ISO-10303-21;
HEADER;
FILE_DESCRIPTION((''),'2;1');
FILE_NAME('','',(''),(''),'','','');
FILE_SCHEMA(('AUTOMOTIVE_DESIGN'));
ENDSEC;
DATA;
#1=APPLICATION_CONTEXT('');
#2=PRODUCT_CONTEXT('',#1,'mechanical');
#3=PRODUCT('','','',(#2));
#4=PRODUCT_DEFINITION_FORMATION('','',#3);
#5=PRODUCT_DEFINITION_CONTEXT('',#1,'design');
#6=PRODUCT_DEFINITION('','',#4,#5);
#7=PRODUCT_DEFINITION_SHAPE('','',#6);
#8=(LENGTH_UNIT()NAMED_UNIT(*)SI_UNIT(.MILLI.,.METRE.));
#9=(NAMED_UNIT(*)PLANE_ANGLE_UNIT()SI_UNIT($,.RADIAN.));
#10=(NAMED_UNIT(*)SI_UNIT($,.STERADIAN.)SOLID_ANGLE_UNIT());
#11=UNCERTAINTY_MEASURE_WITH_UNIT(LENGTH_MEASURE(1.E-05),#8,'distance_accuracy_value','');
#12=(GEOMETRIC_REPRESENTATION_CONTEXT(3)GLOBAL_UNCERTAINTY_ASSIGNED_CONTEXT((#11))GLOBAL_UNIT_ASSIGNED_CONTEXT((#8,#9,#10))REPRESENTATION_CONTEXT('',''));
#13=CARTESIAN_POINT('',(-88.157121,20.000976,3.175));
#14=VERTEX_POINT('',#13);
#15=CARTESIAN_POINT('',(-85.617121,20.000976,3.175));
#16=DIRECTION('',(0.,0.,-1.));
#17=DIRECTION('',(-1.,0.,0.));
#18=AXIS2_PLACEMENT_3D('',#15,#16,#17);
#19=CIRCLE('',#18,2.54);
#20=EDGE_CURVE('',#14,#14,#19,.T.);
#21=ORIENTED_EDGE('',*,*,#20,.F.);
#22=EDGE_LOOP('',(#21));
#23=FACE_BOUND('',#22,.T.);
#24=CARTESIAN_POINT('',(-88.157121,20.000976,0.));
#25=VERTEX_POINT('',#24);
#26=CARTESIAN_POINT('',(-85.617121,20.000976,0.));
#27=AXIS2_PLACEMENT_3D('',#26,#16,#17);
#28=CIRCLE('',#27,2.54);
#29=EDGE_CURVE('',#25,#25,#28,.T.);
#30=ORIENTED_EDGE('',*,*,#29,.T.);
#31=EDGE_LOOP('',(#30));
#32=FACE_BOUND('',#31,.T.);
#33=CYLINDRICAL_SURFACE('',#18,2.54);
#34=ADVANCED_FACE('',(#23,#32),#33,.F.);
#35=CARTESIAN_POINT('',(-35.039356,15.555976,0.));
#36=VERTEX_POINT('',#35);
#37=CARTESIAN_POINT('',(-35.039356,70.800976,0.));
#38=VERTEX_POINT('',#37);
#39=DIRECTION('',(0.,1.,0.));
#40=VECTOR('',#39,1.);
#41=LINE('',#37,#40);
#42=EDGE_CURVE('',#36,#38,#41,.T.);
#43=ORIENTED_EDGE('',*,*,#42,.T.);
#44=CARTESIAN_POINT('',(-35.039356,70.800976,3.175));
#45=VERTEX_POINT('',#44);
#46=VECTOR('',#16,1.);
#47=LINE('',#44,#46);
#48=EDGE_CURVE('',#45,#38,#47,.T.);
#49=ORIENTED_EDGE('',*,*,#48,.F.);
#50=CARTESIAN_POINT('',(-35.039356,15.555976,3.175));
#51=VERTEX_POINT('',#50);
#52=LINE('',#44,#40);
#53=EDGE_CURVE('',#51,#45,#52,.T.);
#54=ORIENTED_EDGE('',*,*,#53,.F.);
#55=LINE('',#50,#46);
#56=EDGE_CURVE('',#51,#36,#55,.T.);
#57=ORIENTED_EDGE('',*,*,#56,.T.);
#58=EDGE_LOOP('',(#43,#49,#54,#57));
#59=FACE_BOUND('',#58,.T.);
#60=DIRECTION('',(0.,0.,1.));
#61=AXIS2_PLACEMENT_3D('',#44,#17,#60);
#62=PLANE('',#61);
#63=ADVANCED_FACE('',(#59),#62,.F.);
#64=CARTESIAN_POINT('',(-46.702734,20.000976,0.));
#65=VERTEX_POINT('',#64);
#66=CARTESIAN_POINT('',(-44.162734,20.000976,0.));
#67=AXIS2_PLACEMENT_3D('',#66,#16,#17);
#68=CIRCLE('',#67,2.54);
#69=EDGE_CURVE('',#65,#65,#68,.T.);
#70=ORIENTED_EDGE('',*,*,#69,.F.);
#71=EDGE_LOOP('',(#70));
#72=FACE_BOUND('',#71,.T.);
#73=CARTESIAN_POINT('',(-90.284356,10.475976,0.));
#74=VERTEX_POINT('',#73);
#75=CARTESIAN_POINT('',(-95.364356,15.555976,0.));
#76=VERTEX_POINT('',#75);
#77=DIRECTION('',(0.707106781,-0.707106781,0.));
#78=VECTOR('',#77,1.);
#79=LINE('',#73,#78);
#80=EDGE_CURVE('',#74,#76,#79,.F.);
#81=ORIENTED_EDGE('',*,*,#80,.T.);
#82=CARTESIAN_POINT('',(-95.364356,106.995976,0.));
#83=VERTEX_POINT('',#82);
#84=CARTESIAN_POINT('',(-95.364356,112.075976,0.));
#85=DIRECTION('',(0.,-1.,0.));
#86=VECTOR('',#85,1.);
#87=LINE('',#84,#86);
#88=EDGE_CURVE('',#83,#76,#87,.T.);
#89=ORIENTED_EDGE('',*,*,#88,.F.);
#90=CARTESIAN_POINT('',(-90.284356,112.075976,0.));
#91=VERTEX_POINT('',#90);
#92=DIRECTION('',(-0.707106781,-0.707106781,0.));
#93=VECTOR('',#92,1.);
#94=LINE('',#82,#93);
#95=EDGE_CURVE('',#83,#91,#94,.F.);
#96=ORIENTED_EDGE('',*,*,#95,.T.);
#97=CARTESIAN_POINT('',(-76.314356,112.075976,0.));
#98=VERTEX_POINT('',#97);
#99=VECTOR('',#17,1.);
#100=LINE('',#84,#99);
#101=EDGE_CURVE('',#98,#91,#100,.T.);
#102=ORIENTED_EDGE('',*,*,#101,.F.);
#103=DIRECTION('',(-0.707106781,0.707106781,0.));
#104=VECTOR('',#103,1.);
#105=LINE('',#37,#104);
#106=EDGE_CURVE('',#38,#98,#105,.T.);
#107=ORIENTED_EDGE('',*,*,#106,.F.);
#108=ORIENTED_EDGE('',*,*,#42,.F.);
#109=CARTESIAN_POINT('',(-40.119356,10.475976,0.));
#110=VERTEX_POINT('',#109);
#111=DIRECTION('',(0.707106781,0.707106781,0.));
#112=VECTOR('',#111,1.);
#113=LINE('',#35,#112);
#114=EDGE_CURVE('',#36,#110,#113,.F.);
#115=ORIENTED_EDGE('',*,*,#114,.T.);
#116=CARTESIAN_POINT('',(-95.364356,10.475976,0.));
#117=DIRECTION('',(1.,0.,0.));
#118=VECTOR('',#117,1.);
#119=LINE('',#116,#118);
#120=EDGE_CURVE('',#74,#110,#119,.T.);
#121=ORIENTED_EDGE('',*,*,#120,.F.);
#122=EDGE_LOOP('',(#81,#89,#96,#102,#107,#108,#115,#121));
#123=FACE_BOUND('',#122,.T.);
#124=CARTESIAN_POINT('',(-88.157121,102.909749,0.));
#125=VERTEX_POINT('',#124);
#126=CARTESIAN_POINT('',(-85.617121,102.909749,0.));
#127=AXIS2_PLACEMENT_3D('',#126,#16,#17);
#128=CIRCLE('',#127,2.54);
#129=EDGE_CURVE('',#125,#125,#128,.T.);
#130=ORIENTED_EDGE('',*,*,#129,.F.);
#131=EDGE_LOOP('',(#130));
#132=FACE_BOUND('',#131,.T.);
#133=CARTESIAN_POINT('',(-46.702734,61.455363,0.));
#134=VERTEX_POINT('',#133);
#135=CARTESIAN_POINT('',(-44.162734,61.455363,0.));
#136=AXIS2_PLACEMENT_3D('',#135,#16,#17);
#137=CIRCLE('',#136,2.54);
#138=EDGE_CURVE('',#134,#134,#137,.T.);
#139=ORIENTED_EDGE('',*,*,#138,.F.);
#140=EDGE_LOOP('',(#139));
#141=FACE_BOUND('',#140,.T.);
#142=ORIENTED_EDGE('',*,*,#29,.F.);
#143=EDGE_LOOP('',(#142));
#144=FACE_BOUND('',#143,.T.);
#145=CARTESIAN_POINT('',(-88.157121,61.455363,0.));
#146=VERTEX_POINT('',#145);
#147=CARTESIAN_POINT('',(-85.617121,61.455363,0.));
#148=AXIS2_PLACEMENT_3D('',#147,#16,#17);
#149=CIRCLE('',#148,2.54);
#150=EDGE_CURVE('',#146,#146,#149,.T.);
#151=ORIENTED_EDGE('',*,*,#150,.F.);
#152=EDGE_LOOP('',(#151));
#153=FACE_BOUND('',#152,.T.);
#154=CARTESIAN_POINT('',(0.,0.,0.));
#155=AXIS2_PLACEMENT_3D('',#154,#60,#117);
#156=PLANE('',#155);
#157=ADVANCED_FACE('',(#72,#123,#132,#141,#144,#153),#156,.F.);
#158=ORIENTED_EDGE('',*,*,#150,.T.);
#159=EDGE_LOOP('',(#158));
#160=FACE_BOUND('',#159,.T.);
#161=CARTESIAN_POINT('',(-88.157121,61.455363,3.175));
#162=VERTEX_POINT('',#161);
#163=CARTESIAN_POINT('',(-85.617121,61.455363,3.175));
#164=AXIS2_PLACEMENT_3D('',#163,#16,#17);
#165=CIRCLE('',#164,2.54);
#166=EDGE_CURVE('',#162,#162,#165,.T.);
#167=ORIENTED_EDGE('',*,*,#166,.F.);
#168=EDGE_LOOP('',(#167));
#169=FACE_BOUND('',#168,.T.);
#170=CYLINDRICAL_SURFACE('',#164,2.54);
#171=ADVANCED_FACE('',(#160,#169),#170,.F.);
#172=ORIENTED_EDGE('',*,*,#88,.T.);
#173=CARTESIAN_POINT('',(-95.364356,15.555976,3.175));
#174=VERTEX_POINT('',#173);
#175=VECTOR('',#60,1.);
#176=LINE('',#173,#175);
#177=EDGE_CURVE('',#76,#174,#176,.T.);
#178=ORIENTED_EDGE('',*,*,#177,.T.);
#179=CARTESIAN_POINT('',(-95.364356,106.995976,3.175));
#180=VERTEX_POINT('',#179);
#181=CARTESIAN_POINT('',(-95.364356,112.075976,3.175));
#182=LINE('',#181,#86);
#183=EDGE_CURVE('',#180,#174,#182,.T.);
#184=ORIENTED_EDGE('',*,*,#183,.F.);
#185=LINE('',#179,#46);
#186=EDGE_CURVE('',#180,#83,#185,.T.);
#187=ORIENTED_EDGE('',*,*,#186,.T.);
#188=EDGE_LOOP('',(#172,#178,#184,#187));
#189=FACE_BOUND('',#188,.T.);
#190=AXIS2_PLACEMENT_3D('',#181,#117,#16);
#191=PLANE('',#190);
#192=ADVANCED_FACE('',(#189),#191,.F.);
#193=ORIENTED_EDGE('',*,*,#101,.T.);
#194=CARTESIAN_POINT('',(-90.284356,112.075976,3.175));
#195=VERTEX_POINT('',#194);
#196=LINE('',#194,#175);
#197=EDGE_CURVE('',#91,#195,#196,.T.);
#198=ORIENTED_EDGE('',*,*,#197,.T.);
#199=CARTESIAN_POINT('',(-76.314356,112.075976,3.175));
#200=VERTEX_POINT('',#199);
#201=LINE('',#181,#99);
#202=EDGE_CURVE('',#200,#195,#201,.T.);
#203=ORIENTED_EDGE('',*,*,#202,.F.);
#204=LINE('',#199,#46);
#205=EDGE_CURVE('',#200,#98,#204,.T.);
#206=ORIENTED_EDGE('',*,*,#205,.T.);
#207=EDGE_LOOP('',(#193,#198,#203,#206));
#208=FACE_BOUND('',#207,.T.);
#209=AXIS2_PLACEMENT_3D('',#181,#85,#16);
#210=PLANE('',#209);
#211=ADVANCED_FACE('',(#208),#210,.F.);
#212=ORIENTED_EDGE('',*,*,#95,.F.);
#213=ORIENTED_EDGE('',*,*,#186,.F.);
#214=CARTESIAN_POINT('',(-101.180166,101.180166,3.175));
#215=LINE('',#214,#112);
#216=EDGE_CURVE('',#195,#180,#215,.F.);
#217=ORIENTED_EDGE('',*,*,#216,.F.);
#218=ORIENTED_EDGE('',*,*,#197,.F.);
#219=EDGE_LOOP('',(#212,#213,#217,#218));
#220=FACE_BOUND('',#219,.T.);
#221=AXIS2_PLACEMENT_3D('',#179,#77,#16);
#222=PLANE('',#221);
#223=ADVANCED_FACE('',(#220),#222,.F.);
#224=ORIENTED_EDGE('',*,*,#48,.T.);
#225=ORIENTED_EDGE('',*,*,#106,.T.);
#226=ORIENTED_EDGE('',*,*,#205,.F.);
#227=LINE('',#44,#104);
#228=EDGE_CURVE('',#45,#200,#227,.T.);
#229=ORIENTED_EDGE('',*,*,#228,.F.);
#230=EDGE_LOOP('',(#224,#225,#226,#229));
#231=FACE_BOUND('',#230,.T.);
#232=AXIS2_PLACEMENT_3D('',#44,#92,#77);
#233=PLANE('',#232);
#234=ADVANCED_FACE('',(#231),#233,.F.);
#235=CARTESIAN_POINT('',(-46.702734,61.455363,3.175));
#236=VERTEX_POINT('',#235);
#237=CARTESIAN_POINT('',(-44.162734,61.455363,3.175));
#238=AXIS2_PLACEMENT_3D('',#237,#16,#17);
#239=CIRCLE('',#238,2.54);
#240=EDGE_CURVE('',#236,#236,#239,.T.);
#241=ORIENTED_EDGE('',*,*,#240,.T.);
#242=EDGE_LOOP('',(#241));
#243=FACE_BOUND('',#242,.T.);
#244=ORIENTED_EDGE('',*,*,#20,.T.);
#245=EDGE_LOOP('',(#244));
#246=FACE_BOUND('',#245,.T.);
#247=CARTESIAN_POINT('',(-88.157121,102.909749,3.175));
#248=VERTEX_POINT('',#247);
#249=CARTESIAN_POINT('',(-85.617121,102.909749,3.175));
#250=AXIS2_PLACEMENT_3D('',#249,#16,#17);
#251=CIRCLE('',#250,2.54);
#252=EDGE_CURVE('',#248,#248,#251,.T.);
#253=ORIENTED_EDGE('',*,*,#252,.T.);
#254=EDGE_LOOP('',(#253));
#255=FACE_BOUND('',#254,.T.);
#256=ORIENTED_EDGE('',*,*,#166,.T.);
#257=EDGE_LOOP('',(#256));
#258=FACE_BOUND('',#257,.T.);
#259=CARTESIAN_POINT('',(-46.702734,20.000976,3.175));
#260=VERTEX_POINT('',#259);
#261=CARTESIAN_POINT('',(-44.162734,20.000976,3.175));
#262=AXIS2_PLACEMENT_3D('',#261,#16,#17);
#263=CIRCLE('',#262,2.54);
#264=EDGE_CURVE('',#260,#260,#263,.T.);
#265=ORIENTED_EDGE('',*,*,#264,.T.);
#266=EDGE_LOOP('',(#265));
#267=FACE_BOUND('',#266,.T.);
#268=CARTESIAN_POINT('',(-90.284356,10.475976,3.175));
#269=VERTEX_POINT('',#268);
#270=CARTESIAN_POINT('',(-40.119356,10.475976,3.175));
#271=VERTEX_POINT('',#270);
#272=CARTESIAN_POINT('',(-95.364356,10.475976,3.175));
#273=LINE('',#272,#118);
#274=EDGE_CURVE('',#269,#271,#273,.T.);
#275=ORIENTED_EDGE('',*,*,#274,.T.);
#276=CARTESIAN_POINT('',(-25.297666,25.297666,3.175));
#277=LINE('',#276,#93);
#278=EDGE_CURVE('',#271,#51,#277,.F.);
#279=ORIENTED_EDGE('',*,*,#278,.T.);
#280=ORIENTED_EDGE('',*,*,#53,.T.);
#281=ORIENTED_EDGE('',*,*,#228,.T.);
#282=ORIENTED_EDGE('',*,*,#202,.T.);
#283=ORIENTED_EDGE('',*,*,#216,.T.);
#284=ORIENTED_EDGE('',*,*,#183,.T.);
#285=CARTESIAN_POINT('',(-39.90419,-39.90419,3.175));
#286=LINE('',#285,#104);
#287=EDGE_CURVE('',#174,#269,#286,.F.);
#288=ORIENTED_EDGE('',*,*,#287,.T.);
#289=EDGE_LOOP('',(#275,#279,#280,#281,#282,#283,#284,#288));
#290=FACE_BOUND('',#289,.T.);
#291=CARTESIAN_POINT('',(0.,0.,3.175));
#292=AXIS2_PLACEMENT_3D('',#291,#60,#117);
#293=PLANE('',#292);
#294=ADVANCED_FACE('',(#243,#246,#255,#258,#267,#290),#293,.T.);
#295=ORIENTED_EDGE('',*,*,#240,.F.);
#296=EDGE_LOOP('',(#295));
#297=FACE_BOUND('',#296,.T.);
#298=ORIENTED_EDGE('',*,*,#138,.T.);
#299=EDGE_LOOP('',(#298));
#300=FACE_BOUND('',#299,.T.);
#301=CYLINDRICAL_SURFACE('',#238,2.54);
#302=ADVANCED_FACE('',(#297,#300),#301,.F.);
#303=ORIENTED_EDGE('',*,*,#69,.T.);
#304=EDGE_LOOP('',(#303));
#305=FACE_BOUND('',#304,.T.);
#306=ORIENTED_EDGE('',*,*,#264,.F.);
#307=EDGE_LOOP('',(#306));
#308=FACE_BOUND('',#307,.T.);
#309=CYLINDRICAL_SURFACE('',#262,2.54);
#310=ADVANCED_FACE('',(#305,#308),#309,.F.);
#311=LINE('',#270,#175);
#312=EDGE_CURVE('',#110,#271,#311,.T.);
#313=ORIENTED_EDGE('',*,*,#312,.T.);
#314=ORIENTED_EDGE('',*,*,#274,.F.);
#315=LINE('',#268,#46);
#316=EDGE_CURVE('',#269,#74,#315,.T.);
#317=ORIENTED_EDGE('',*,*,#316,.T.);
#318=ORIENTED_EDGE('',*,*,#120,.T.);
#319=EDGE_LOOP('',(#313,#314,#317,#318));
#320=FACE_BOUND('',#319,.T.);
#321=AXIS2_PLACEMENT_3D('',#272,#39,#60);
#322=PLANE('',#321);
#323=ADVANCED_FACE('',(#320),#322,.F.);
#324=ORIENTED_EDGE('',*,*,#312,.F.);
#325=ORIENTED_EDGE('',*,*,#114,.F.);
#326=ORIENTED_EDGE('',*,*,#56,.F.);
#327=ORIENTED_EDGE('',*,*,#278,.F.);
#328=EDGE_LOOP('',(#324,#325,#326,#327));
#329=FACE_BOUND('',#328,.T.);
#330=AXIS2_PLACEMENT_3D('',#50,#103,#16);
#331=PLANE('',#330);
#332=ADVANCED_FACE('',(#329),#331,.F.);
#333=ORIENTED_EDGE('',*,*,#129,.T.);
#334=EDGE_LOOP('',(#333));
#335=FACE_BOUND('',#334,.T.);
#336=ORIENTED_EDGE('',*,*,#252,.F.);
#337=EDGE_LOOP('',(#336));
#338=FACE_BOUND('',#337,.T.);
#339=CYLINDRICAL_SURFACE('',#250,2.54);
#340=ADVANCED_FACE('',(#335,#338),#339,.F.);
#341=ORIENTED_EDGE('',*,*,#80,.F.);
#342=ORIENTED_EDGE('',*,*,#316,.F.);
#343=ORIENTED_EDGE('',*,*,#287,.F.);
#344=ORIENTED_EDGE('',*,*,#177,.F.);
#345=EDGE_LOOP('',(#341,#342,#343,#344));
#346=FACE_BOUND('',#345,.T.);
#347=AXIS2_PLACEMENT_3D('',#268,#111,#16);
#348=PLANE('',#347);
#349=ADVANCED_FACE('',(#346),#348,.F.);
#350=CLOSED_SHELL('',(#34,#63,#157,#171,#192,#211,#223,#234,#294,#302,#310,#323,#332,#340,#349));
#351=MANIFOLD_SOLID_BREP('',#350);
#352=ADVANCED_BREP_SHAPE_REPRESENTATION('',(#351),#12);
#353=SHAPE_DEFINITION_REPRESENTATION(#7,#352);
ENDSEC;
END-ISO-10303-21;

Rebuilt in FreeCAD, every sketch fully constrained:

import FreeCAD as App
import Part
import Sketcher

V = App.Vector
Q = App.Units.Quantity


def edges_at(feature, points):
    """Names of the edges that pass closest to the given points."""
    edges = feature.Shape.Edges
    near = lambda p: min(range(len(edges)), key=lambda i: edges[i].distToShape(Part.Vertex(*p))[0])
    return sorted({f"Edge{near(p) + 1}" for p in points})


def add_polygon(sketch, points):
    """Adds a closed chain of lines whose ends are joined by coincident constraints."""
    first, n = sketch.GeometryCount, len(points)
    for a, b in zip(points, points[1:] + points[:1]):
        sketch.addGeometry(Part.LineSegment(App.Vector(*a, 0), App.Vector(*b, 0)), False)
    for i in range(n):
        sketch.addConstraint(Sketcher.Constraint("Coincident", first + i, 2, first + (i + 1) % n, 1))

doc = App.newDocument("Part")
body = doc.addObject("PartDesign::Body", "Body")

# Sketch on XY plane
sketch1 = body.newObject("Sketcher::SketchObject", "Sketch")
sketch1.AttachmentSupport = (doc.getObject("XY_Plane"), [""])
sketch1.MapMode = "FlatFace"
add_polygon(sketch1, [(-95, 10), (-35, 10), (-35, 71), (-76, 112), (-95, 112)])  # lines 0-4
sketch1.addConstraint([
    Sketcher.Constraint("Horizontal", 0),
    Sketcher.Constraint("Vertical", 1),
    Sketcher.Constraint("Horizontal", 3),
    Sketcher.Constraint("Vertical", 4),
    Sketcher.Constraint("Equal", 0, 1),
    Sketcher.Constraint("DistanceY", 4, 2, 4, 1, Q("4 in")),
    Sketcher.Constraint("Angle", 2, Q("135 deg")),
    Sketcher.Constraint("DistanceX", 3, 2, 3, 1, Q("0.75 in")),
    Sketcher.Constraint("DistanceX", 0, 2, -1, 1, 35.039356),
    Sketcher.Constraint("DistanceY", -1, 1, 0, 2, 10.475976),
])
pad1 = body.newObject("PartDesign::Pad", "Pad")
pad1.Profile = sketch1
pad1.Length = Q("0.125 in")

# Sketch on XY plane
sketch2 = body.newObject("Sketcher::SketchObject", "Sketch001")
sketch2.AttachmentSupport = (doc.getObject("XY_Plane"), [""])
sketch2.MapMode = "FlatFace"
sketch2.addGeometry([
    Part.Circle(V(-44.2, 20, 0), V(0, 0, 1), 2.5),  # 0
    Part.Circle(V(-85.6, 20, 0), V(0, 0, 1), 2.5),  # 1
    Part.Circle(V(-85.6, 61.5, 0), V(0, 0, 1), 2.5),  # 2
    Part.Circle(V(-85.6, 102.9, 0), V(0, 0, 1), 2.5),  # 3
    Part.Circle(V(-44.2, 61.5, 0), V(0, 0, 1), 2.5),  # 4
], False)
sketch2.addConstraint([
    Sketcher.Constraint("Equal", 0, 1),
    Sketcher.Constraint("Equal", 1, 2),
    Sketcher.Constraint("Equal", 2, 3),
    Sketcher.Constraint("Equal", 3, 4),
    Sketcher.Constraint("Horizontal", 0, 3, 1, 3),
    Sketcher.Constraint("Horizontal", 2, 3, 4, 3),
    Sketcher.Constraint("Vertical", 1, 3, 2, 3),
    Sketcher.Constraint("Vertical", 2, 3, 3, 3),
    Sketcher.Constraint("Vertical", 0, 3, 4, 3),
    Sketcher.Constraint("Diameter", 0, Q("0.2 in")),
    Sketcher.Constraint("DistanceX", 1, 3, -1, 1, 85.617121),
    Sketcher.Constraint("DistanceY", -1, 1, 3, 3, 102.909749),
    Sketcher.Constraint("DistanceX", 0, 3, -1, 1, 44.162734),
    Sketcher.Constraint("DistanceY", -1, 1, 0, 3, 20.000976),
    Sketcher.Constraint("DistanceY", -1, 1, 2, 3, 61.455363),
])
pocket1 = body.newObject("PartDesign::Pocket", "Pocket")
pocket1.Profile = sketch2
pocket1.Type = "ThroughAll"
pocket1.Reversed = True
doc.recompute()

chamfer = body.newObject("PartDesign::Chamfer", "Chamfer")
chamfer.Base = (pocket1, edges_at(pocket1, [(-95.364, 112.076, 1.587), (-35.039, 10.476, 1.587), (-95.364, 10.476, 1.587)]))
chamfer.Size = Q("0.2 in")

doc.recompute()
